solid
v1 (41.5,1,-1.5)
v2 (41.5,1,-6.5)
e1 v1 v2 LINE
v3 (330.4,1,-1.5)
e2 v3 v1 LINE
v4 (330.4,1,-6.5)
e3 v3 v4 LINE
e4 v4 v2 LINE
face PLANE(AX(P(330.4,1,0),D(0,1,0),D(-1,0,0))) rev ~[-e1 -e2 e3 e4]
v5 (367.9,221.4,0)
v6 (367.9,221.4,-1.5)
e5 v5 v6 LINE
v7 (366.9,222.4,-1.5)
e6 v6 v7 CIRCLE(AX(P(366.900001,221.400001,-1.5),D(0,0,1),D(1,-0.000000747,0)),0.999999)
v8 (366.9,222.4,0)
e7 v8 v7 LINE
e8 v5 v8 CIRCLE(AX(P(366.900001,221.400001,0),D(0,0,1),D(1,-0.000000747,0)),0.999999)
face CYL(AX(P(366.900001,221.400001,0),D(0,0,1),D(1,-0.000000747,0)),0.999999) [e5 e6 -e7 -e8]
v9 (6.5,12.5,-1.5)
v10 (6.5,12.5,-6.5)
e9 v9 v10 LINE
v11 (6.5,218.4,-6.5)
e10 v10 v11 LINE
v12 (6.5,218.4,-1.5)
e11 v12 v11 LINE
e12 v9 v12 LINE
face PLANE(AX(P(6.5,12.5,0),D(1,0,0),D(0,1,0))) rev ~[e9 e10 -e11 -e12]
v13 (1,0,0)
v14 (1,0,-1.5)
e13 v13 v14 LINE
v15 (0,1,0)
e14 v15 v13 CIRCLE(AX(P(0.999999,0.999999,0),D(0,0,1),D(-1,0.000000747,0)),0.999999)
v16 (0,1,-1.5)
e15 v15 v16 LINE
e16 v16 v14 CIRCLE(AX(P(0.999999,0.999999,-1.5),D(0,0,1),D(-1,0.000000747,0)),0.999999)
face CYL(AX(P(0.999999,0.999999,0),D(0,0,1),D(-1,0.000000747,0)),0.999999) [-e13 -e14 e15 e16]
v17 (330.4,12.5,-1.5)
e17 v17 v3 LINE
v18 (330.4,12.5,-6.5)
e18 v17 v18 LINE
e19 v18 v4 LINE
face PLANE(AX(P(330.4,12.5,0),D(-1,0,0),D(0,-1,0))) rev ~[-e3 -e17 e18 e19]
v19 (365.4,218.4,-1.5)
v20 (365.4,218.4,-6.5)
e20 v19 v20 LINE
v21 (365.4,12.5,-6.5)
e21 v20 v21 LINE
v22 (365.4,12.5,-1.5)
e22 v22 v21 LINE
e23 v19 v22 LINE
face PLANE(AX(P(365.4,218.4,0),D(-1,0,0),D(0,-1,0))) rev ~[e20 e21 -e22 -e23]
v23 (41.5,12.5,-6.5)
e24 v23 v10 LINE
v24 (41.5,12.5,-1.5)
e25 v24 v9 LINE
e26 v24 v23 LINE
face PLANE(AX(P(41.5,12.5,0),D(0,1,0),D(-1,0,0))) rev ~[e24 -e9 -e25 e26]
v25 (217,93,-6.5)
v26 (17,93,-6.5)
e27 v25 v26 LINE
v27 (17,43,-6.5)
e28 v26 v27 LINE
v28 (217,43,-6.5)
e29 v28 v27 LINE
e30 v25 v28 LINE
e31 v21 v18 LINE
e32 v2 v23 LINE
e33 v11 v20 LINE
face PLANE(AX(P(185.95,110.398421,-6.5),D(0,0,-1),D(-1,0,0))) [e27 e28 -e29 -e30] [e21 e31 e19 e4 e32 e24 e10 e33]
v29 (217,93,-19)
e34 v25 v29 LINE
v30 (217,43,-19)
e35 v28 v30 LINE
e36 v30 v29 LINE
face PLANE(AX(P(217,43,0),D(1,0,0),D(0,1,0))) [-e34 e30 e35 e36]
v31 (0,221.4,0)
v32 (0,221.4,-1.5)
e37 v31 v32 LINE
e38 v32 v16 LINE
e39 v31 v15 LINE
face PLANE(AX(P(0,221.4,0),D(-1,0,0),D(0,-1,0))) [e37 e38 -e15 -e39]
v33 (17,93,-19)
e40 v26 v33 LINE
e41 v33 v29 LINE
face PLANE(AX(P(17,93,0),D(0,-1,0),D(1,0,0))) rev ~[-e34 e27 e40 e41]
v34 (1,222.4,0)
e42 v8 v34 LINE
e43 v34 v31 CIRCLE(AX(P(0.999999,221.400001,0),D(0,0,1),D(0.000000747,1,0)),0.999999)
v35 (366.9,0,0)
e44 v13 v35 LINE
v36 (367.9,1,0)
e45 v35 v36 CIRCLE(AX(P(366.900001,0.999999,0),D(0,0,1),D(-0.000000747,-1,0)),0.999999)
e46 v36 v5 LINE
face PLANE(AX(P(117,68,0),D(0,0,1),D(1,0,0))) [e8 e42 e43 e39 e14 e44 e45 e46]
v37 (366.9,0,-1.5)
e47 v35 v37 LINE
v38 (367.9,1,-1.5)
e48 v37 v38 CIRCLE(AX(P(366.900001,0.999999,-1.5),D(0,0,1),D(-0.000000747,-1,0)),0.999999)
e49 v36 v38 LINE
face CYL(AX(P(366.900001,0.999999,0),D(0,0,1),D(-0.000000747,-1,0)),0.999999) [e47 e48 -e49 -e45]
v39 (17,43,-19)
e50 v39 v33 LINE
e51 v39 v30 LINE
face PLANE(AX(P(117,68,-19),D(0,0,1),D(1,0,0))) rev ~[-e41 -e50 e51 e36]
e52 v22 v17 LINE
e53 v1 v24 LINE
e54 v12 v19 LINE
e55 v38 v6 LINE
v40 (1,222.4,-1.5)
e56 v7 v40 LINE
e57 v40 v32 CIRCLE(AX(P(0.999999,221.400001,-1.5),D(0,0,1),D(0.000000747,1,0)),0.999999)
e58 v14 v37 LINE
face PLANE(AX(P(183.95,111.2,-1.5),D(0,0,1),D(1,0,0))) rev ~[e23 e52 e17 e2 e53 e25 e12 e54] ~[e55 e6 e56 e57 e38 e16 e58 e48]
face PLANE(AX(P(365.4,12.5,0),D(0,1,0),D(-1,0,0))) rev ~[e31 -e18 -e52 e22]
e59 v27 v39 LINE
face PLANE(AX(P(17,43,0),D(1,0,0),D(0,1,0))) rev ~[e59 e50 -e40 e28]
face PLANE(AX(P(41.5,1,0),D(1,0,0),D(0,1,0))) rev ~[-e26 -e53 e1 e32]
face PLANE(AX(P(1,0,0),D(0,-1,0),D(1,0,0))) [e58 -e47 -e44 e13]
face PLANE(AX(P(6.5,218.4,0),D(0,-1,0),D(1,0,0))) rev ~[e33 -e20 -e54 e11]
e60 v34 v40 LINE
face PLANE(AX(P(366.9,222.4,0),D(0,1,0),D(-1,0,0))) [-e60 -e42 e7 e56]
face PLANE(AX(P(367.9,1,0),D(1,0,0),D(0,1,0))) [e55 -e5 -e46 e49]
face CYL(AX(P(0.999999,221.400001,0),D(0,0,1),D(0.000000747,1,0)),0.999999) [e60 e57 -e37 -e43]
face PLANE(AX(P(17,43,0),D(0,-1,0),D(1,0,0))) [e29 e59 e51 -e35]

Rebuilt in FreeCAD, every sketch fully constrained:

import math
import FreeCAD as App
import Part
import Sketcher
Q = App.Units.Quantity


def add_polygon(sketch, points):
    """Adds a closed chain of lines whose ends are joined by coincident constraints."""
    first, n = sketch.GeometryCount, len(points)
    for a, b in zip(points, points[1:] + points[:1]):
        sketch.addGeometry(Part.LineSegment(App.Vector(*a, 0), App.Vector(*b, 0)), False)
    for i in range(n):
        sketch.addConstraint(Sketcher.Constraint("Coincident", first + i, 2, first + (i + 1) % n, 1))

doc = App.newDocument("Part")
body = doc.addObject("PartDesign::Body", "Body")

sketch1 = body.newObject("Sketcher::SketchObject", "Sketch")
sketch1.AttachmentSupport = (doc.getObject("XY_Plane"), [""])
sketch1.MapMode = "FlatFace"
sketch1.addGeometry([
    Part.LineSegment(App.Vector(1, 0, 0), App.Vector(366.9, 0, 0)),
    Part.ArcOfCircle(Part.Circle(App.Vector(366.9, 1, 0), App.Vector(0, 0, 1), 1), math.radians(-90), math.radians(0)),
    Part.LineSegment(App.Vector(367.9, 1, 0), App.Vector(367.9, 221.4, 0)),
    Part.ArcOfCircle(Part.Circle(App.Vector(366.9, 221.4, 0), App.Vector(0, 0, 1), 1), math.radians(0), math.radians(90)),
    Part.LineSegment(App.Vector(366.9, 222.4, 0), App.Vector(1, 222.4, 0)),
    Part.ArcOfCircle(Part.Circle(App.Vector(1, 221.4, 0), App.Vector(0, 0, 1), 1), math.radians(90), math.radians(180)),
    Part.LineSegment(App.Vector(0, 221.4, 0), App.Vector(0, 1, 0)),
    Part.ArcOfCircle(Part.Circle(App.Vector(1, 1, 0), App.Vector(0, 0, 1), 1), math.radians(180), math.radians(270)),
], False)
sketch1.addConstraint([
    Sketcher.Constraint("Tangent", 0, 2, 1, 1),
    Sketcher.Constraint("Tangent", 1, 2, 2, 1),
    Sketcher.Constraint("Tangent", 2, 2, 3, 1),
    Sketcher.Constraint("Tangent", 3, 2, 4, 1),
    Sketcher.Constraint("Tangent", 4, 2, 5, 1),
    Sketcher.Constraint("Tangent", 5, 2, 6, 1),
    Sketcher.Constraint("Tangent", 6, 2, 7, 1),
    Sketcher.Constraint("Tangent", 7, 2, 0, 1),
    Sketcher.Constraint("Horizontal", 0),
    Sketcher.Constraint("Vertical", 2),
    Sketcher.Constraint("Horizontal", 4),
    Sketcher.Constraint("Vertical", 6),
    Sketcher.Constraint("Equal", 1, 3),
    Sketcher.Constraint("Equal", 3, 5),
    Sketcher.Constraint("Equal", 5, 7),
    Sketcher.Constraint("PointOnObject", 0, 2, -1),
    Sketcher.Constraint("PointOnObject", 5, 2, -2),
    Sketcher.Constraint("Radius", 1, Q("0.999999 mm")),
    Sketcher.Constraint("DistanceX", 0, 1, 0, 2, Q("365.9 mm")),
    Sketcher.Constraint("DistanceY", 2, 1, 2, 2, Q("220.4 mm")),
])
pad1 = body.newObject("PartDesign::Pad", "Pad")
pad1.Profile = sketch1
pad1.Length = 1.5
pad1.Reversed = True

sketch2 = body.newObject("Sketcher::SketchObject", "Sketch001")
sketch2.AttachmentSupport = (doc.getObject("XY_Plane"), [""])
sketch2.MapMode = "FlatFace"
add_polygon(sketch2, [(6, 218), (6, 12), (42, 12), (42, 1), (330, 1), (330, 12), (365, 12), (365, 218)])
sketch2.addConstraint([
    Sketcher.Constraint("Vertical", 0),
    Sketcher.Constraint("Horizontal", 1),
    Sketcher.Constraint("Vertical", 2),
    Sketcher.Constraint("Horizontal", 3),
    Sketcher.Constraint("Vertical", 4),
    Sketcher.Constraint("Horizontal", 5),
    Sketcher.Constraint("Vertical", 6),
    Sketcher.Constraint("Horizontal", 7),
    Sketcher.Constraint("Horizontal", 1, 2, 4, 2),
    Sketcher.Constraint("Equal", 1, 5),
    Sketcher.Constraint("DistanceX", 1, 1, 1, 2, Q("35 mm")),
    Sketcher.Constraint("DistanceX", 3, 1, 3, 2, Q("288.9 mm")),
    Sketcher.Constraint("DistanceY", 0, 2, 0, 1, Q("205.9 mm")),
    Sketcher.Constraint("DistanceY", 2, 2, 2, 1, Q("11.5 mm")),
    Sketcher.Constraint("DistanceY", -1, 1, 2, 2, Q("1 mm")),
    Sketcher.Constraint("DistanceX", -1, 1, 0, 2, Q("6.5 mm")),
])
pad2 = body.newObject("PartDesign::Pad", "Pad001")
pad2.Profile = sketch2
pad2.Length = 6.5
pad2.Reversed = True

sketch3 = body.newObject("Sketcher::SketchObject", "Sketch002")
sketch3.AttachmentSupport = (doc.getObject("XY_Plane"), [""])
sketch3.MapMode = "FlatFace"
add_polygon(sketch3, [(17, 93), (17, 43), (217, 43), (217, 93)])
sketch3.addConstraint([
    Sketcher.Constraint("Vertical", 0),
    Sketcher.Constraint("Horizontal", 1),
    Sketcher.Constraint("Vertical", 2),
    Sketcher.Constraint("Horizontal", 3),
    Sketcher.Constraint("DistanceX", 1, 1, 1, 2, Q("200 mm")),
    Sketcher.Constraint("DistanceY", 0, 2, 0, 1, Q("50 mm")),
    Sketcher.Constraint("DistanceX", -1, 1, 0, 2, Q("17 mm")),
    Sketcher.Constraint("DistanceY", -1, 1, 0, 2, Q("43 mm")),
])
pad3 = body.newObject("PartDesign::Pad", "Pad002")
pad3.Profile = sketch3
pad3.Length = 19
pad3.Reversed = True

doc.recompute()
